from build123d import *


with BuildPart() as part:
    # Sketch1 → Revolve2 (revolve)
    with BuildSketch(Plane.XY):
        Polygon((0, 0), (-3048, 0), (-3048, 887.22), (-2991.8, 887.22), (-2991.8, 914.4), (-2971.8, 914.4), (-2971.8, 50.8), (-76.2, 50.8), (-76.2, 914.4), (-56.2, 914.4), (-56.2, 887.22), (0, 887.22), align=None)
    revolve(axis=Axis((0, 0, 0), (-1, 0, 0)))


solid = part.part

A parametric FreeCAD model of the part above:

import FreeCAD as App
import Part
import Sketcher

V = App.Vector
Q = App.Units.Quantity


def add_polygon(sketch, points):
    """Adds a closed chain of lines whose ends are joined by coincident constraints."""
    first, n = sketch.GeometryCount, len(points)
    for a, b in zip(points, points[1:] + points[:1]):
        sketch.addGeometry(Part.LineSegment(App.Vector(*a, 0), App.Vector(*b, 0)), False)
    for i in range(n):
        sketch.addConstraint(Sketcher.Constraint("Coincident", first + i, 2, first + (i + 1) % n, 1))

doc = App.newDocument("Part")
body = doc.addObject("PartDesign::Body", "Body")

sketch1 = body.newObject("Sketcher::SketchObject", "Sketch")
sketch1.AttachmentSupport = (doc.getObject("XY_Plane"), [""])
sketch1.MapMode = "FlatFace"
add_polygon(sketch1, [(-3048, 0), (0, 0), (0, 887), (-56, 887), (-56, 914), (-76, 914), (-76, 51), (-2972, 51), (-2972, 914), (-2992, 914), (-2992, 887), (-3048, 887)])
sketch1.addConstraint([
    Sketcher.Constraint("Horizontal", 0),
    Sketcher.Constraint("Vertical", 1),
    Sketcher.Constraint("Horizontal", 2),
    Sketcher.Constraint("Vertical", 3),
    Sketcher.Constraint("Horizontal", 4),
    Sketcher.Constraint("Vertical", 5),
    Sketcher.Constraint("Horizontal", 6),
    Sketcher.Constraint("Vertical", 7),
    Sketcher.Constraint("Horizontal", 8),
    Sketcher.Constraint("Vertical", 9),
    Sketcher.Constraint("Horizontal", 10),
    Sketcher.Constraint("Vertical", 11),
    Sketcher.Constraint("Coincident", 0, 2, -1, 1),
    Sketcher.Constraint("Horizontal", 4, 2, 7, 2),
    Sketcher.Constraint("Horizontal", 2, 2, 9, 2),
    Sketcher.Constraint("Equal", 4, 8),
    Sketcher.Constraint("Equal", 2, 10),
    Sketcher.Constraint("DistanceX", 0, 1, 0, 2, Q("120 in")),
    Sketcher.Constraint("DistanceX", 6, 2, 6, 1, Q("114 in")),
    Sketcher.Constraint("DistanceY", 5, 2, 5, 1, Q("34 in")),
    Sketcher.Constraint("DistanceY", -1, 1, 3, 2, Q("36 in")),
    Sketcher.Constraint("DistanceX", 2, 2, 2, 1, 56.2),
    Sketcher.Constraint("DistanceY", 1, 1, 1, 2, 887.22),
])
revolution = body.newObject("PartDesign::Revolution", "Revolution")
revolution.Profile = sketch1
revolution.ReferenceAxis = (sketch1, ["H_Axis"])
revolution.Angle = 360

doc.recompute()
